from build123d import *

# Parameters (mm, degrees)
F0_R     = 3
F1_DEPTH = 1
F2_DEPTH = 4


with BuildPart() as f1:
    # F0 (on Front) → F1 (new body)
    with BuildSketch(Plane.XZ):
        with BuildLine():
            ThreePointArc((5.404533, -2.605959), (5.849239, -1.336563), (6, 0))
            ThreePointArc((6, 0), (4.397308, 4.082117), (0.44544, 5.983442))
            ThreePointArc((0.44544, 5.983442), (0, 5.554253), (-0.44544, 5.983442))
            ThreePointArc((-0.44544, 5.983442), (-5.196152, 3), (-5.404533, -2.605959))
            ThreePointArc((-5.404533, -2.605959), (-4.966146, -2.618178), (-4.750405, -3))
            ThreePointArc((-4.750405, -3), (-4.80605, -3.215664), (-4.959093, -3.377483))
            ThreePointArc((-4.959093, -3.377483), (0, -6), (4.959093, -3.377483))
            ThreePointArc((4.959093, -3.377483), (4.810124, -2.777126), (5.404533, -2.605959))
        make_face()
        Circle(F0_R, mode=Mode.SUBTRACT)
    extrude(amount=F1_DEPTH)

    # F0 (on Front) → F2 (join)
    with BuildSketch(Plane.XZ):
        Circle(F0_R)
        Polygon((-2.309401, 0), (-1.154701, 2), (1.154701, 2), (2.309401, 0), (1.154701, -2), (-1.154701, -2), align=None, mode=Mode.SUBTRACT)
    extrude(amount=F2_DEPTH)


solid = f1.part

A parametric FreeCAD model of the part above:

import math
import FreeCAD as App
import Part
import Sketcher
from FreeCAD import Vector
Q = App.Units.Quantity


def add_polygon(sketch, points):
    """Adds a closed chain of lines whose ends are joined by coincident constraints."""
    first, n = sketch.GeometryCount, len(points)
    for a, b in zip(points, points[1:] + points[:1]):
        sketch.addGeometry(Part.LineSegment(App.Vector(*a, 0), App.Vector(*b, 0)), False)
    for i in range(n):
        sketch.addConstraint(Sketcher.Constraint("Coincident", first + i, 2, first + (i + 1) % n, 1))

doc = App.newDocument("Part")
body = doc.addObject("PartDesign::Body", "Body")

# Sketch on XZ plane
sketch1 = body.newObject("Sketcher::SketchObject", "Sketch")
sketch1.AttachmentSupport = (doc.getObject("XZ_Plane"), [""])
sketch1.MapMode = "FlatFace"
sketch1.addGeometry([
    Part.ArcOfCircle(Part.Circle(Vector(0, 0, 0), Vector(0, 0, 1), 6), math.radians(-26), math.radians(0)),  # 0
    Part.ArcOfCircle(Part.Circle(Vector(0, 0, 0), Vector(0, 0, 1), 6), math.radians(0), math.radians(86)),  # 1
    Part.ArcOfCircle(Part.Circle(Vector(0, 6, 0), Vector(0, 0, 1), 0.45), math.radians(-178), math.radians(-2)),  # 2
    Part.ArcOfCircle(Part.Circle(Vector(0, 0, 0), Vector(0, 0, 1), 6), math.radians(94), math.radians(206)),  # 3
    Part.ArcOfCircle(Part.Circle(Vector(-5.2, -3, 0), Vector(0, 0, 1), 0.45), math.radians(0), math.radians(118)),  # 4
    Part.ArcOfCircle(Part.Circle(Vector(-5.2, -3, 0), Vector(0, 0, 1), 0.45), math.radians(-58), math.radians(0)),  # 5
    Part.ArcOfCircle(Part.Circle(Vector(0, 0, 0), Vector(0, 0, 1), 6), math.radians(-146), math.radians(-34)),  # 6
    Part.ArcOfCircle(Part.Circle(Vector(5.2, -3, 0), Vector(0, 0, 1), 0.45), math.radians(62), math.radians(238)),  # 7
    Part.Circle(Vector(0, 0, 0), Vector(0, 0, 1), 3),  # 8
], False)
sketch1.addConstraint([
    Sketcher.Constraint("Tangent", 0, 2, 1, 1),
    Sketcher.Constraint("Coincident", 1, 2, 2, 2),
    Sketcher.Constraint("Coincident", 2, 1, 3, 1),
    Sketcher.Constraint("Coincident", 3, 2, 4, 2),
    Sketcher.Constraint("Coincident", 4, 1, 5, 2),
    Sketcher.Constraint("Coincident", 5, 1, 6, 1),
    Sketcher.Constraint("Coincident", 6, 2, 7, 2),
    Sketcher.Constraint("Coincident", 7, 1, 0, 1),
    Sketcher.Constraint("Coincident", 0, 3, -1, 1),
    Sketcher.Constraint("Coincident", 3, 3, -1, 1),
    Sketcher.Constraint("Coincident", 6, 3, -1, 1),
    Sketcher.Constraint("Coincident", 8, 3, -1, 1),
    Sketcher.Constraint("Coincident", 5, 3, 4, 3),
    Sketcher.Constraint("Equal", 1, 3),
    Sketcher.Constraint("Equal", 2, 4),
    Sketcher.Constraint("Equal", 3, 6),
    Sketcher.Constraint("Equal", 5, 7),
    Sketcher.Constraint("Symmetric", 4, 3, 7, 3, -2),
    Sketcher.Constraint("Symmetric", 1, 2, 2, 1, -2),
    Sketcher.Constraint("PointOnObject", 0, 2, -1),
    Sketcher.Constraint("Horizontal", 7, 3, 4, 1),
    Sketcher.Constraint("Diameter", 8, 6.0),
    Sketcher.Constraint("Radius", 1, 6.0),
    Sketcher.Constraint("DistanceY", -1, 1, 2, 3, 6.000001),
    Sketcher.Constraint("DistanceY", 4, 3, -1, 1, 3.0),
    Sketcher.Constraint("Radius", 2, 0.445748),
    Sketcher.Constraint("DistanceX", 4, 1, 0, 3, 4.750398),
])
pad1 = body.newObject("PartDesign::Pad", "Pad")
pad1.Profile = sketch1
pad1.Length = 1

# Sketch on XZ plane
sketch2 = body.newObject("Sketcher::SketchObject", "Sketch001")
sketch2.AttachmentSupport = (doc.getObject("XZ_Plane"), [""])
sketch2.MapMode = "FlatFace"
sketch2.addGeometry(Part.Circle(Vector(0, 0, 0), Vector(0, 0, 1), 3), False)  # 0
add_polygon(sketch2, [(-1.2, -2), (-2.3, 0), (-1.2, 2), (1.2, 2), (2.3, 0), (1.2, -2)])  # lines 1-6
sketch2.addConstraint([
    Sketcher.Constraint("Horizontal", 3),
    Sketcher.Constraint("Horizontal", 6),
    Sketcher.Constraint("Coincident", 0, 3, -1, 1),
    Sketcher.Constraint("Symmetric", 1, 2, 4, 2, -1, 1),
    Sketcher.Constraint("Symmetric", 2, 2, 5, 2, -1, 1),
    Sketcher.Constraint("PointOnObject", 1, 2, -1),
    Sketcher.Constraint("Parallel", 1, 4),
    Sketcher.Constraint("Vertical", 3, 2, 5, 2),
    Sketcher.Constraint("Diameter", 0, 6.0),
    Sketcher.Constraint("Angle", 1, Q("119.999988 deg")),
    Sketcher.Constraint("DistanceY", -1, 1, 2, 2, 2.0),
    Sketcher.Constraint("DistanceX", 3, 1, 3, 2, 2.309402),
])
pad2 = body.newObject("PartDesign::Pad", "Pad001")
pad2.Profile = sketch2
pad2.Length = 4

doc.recompute()
